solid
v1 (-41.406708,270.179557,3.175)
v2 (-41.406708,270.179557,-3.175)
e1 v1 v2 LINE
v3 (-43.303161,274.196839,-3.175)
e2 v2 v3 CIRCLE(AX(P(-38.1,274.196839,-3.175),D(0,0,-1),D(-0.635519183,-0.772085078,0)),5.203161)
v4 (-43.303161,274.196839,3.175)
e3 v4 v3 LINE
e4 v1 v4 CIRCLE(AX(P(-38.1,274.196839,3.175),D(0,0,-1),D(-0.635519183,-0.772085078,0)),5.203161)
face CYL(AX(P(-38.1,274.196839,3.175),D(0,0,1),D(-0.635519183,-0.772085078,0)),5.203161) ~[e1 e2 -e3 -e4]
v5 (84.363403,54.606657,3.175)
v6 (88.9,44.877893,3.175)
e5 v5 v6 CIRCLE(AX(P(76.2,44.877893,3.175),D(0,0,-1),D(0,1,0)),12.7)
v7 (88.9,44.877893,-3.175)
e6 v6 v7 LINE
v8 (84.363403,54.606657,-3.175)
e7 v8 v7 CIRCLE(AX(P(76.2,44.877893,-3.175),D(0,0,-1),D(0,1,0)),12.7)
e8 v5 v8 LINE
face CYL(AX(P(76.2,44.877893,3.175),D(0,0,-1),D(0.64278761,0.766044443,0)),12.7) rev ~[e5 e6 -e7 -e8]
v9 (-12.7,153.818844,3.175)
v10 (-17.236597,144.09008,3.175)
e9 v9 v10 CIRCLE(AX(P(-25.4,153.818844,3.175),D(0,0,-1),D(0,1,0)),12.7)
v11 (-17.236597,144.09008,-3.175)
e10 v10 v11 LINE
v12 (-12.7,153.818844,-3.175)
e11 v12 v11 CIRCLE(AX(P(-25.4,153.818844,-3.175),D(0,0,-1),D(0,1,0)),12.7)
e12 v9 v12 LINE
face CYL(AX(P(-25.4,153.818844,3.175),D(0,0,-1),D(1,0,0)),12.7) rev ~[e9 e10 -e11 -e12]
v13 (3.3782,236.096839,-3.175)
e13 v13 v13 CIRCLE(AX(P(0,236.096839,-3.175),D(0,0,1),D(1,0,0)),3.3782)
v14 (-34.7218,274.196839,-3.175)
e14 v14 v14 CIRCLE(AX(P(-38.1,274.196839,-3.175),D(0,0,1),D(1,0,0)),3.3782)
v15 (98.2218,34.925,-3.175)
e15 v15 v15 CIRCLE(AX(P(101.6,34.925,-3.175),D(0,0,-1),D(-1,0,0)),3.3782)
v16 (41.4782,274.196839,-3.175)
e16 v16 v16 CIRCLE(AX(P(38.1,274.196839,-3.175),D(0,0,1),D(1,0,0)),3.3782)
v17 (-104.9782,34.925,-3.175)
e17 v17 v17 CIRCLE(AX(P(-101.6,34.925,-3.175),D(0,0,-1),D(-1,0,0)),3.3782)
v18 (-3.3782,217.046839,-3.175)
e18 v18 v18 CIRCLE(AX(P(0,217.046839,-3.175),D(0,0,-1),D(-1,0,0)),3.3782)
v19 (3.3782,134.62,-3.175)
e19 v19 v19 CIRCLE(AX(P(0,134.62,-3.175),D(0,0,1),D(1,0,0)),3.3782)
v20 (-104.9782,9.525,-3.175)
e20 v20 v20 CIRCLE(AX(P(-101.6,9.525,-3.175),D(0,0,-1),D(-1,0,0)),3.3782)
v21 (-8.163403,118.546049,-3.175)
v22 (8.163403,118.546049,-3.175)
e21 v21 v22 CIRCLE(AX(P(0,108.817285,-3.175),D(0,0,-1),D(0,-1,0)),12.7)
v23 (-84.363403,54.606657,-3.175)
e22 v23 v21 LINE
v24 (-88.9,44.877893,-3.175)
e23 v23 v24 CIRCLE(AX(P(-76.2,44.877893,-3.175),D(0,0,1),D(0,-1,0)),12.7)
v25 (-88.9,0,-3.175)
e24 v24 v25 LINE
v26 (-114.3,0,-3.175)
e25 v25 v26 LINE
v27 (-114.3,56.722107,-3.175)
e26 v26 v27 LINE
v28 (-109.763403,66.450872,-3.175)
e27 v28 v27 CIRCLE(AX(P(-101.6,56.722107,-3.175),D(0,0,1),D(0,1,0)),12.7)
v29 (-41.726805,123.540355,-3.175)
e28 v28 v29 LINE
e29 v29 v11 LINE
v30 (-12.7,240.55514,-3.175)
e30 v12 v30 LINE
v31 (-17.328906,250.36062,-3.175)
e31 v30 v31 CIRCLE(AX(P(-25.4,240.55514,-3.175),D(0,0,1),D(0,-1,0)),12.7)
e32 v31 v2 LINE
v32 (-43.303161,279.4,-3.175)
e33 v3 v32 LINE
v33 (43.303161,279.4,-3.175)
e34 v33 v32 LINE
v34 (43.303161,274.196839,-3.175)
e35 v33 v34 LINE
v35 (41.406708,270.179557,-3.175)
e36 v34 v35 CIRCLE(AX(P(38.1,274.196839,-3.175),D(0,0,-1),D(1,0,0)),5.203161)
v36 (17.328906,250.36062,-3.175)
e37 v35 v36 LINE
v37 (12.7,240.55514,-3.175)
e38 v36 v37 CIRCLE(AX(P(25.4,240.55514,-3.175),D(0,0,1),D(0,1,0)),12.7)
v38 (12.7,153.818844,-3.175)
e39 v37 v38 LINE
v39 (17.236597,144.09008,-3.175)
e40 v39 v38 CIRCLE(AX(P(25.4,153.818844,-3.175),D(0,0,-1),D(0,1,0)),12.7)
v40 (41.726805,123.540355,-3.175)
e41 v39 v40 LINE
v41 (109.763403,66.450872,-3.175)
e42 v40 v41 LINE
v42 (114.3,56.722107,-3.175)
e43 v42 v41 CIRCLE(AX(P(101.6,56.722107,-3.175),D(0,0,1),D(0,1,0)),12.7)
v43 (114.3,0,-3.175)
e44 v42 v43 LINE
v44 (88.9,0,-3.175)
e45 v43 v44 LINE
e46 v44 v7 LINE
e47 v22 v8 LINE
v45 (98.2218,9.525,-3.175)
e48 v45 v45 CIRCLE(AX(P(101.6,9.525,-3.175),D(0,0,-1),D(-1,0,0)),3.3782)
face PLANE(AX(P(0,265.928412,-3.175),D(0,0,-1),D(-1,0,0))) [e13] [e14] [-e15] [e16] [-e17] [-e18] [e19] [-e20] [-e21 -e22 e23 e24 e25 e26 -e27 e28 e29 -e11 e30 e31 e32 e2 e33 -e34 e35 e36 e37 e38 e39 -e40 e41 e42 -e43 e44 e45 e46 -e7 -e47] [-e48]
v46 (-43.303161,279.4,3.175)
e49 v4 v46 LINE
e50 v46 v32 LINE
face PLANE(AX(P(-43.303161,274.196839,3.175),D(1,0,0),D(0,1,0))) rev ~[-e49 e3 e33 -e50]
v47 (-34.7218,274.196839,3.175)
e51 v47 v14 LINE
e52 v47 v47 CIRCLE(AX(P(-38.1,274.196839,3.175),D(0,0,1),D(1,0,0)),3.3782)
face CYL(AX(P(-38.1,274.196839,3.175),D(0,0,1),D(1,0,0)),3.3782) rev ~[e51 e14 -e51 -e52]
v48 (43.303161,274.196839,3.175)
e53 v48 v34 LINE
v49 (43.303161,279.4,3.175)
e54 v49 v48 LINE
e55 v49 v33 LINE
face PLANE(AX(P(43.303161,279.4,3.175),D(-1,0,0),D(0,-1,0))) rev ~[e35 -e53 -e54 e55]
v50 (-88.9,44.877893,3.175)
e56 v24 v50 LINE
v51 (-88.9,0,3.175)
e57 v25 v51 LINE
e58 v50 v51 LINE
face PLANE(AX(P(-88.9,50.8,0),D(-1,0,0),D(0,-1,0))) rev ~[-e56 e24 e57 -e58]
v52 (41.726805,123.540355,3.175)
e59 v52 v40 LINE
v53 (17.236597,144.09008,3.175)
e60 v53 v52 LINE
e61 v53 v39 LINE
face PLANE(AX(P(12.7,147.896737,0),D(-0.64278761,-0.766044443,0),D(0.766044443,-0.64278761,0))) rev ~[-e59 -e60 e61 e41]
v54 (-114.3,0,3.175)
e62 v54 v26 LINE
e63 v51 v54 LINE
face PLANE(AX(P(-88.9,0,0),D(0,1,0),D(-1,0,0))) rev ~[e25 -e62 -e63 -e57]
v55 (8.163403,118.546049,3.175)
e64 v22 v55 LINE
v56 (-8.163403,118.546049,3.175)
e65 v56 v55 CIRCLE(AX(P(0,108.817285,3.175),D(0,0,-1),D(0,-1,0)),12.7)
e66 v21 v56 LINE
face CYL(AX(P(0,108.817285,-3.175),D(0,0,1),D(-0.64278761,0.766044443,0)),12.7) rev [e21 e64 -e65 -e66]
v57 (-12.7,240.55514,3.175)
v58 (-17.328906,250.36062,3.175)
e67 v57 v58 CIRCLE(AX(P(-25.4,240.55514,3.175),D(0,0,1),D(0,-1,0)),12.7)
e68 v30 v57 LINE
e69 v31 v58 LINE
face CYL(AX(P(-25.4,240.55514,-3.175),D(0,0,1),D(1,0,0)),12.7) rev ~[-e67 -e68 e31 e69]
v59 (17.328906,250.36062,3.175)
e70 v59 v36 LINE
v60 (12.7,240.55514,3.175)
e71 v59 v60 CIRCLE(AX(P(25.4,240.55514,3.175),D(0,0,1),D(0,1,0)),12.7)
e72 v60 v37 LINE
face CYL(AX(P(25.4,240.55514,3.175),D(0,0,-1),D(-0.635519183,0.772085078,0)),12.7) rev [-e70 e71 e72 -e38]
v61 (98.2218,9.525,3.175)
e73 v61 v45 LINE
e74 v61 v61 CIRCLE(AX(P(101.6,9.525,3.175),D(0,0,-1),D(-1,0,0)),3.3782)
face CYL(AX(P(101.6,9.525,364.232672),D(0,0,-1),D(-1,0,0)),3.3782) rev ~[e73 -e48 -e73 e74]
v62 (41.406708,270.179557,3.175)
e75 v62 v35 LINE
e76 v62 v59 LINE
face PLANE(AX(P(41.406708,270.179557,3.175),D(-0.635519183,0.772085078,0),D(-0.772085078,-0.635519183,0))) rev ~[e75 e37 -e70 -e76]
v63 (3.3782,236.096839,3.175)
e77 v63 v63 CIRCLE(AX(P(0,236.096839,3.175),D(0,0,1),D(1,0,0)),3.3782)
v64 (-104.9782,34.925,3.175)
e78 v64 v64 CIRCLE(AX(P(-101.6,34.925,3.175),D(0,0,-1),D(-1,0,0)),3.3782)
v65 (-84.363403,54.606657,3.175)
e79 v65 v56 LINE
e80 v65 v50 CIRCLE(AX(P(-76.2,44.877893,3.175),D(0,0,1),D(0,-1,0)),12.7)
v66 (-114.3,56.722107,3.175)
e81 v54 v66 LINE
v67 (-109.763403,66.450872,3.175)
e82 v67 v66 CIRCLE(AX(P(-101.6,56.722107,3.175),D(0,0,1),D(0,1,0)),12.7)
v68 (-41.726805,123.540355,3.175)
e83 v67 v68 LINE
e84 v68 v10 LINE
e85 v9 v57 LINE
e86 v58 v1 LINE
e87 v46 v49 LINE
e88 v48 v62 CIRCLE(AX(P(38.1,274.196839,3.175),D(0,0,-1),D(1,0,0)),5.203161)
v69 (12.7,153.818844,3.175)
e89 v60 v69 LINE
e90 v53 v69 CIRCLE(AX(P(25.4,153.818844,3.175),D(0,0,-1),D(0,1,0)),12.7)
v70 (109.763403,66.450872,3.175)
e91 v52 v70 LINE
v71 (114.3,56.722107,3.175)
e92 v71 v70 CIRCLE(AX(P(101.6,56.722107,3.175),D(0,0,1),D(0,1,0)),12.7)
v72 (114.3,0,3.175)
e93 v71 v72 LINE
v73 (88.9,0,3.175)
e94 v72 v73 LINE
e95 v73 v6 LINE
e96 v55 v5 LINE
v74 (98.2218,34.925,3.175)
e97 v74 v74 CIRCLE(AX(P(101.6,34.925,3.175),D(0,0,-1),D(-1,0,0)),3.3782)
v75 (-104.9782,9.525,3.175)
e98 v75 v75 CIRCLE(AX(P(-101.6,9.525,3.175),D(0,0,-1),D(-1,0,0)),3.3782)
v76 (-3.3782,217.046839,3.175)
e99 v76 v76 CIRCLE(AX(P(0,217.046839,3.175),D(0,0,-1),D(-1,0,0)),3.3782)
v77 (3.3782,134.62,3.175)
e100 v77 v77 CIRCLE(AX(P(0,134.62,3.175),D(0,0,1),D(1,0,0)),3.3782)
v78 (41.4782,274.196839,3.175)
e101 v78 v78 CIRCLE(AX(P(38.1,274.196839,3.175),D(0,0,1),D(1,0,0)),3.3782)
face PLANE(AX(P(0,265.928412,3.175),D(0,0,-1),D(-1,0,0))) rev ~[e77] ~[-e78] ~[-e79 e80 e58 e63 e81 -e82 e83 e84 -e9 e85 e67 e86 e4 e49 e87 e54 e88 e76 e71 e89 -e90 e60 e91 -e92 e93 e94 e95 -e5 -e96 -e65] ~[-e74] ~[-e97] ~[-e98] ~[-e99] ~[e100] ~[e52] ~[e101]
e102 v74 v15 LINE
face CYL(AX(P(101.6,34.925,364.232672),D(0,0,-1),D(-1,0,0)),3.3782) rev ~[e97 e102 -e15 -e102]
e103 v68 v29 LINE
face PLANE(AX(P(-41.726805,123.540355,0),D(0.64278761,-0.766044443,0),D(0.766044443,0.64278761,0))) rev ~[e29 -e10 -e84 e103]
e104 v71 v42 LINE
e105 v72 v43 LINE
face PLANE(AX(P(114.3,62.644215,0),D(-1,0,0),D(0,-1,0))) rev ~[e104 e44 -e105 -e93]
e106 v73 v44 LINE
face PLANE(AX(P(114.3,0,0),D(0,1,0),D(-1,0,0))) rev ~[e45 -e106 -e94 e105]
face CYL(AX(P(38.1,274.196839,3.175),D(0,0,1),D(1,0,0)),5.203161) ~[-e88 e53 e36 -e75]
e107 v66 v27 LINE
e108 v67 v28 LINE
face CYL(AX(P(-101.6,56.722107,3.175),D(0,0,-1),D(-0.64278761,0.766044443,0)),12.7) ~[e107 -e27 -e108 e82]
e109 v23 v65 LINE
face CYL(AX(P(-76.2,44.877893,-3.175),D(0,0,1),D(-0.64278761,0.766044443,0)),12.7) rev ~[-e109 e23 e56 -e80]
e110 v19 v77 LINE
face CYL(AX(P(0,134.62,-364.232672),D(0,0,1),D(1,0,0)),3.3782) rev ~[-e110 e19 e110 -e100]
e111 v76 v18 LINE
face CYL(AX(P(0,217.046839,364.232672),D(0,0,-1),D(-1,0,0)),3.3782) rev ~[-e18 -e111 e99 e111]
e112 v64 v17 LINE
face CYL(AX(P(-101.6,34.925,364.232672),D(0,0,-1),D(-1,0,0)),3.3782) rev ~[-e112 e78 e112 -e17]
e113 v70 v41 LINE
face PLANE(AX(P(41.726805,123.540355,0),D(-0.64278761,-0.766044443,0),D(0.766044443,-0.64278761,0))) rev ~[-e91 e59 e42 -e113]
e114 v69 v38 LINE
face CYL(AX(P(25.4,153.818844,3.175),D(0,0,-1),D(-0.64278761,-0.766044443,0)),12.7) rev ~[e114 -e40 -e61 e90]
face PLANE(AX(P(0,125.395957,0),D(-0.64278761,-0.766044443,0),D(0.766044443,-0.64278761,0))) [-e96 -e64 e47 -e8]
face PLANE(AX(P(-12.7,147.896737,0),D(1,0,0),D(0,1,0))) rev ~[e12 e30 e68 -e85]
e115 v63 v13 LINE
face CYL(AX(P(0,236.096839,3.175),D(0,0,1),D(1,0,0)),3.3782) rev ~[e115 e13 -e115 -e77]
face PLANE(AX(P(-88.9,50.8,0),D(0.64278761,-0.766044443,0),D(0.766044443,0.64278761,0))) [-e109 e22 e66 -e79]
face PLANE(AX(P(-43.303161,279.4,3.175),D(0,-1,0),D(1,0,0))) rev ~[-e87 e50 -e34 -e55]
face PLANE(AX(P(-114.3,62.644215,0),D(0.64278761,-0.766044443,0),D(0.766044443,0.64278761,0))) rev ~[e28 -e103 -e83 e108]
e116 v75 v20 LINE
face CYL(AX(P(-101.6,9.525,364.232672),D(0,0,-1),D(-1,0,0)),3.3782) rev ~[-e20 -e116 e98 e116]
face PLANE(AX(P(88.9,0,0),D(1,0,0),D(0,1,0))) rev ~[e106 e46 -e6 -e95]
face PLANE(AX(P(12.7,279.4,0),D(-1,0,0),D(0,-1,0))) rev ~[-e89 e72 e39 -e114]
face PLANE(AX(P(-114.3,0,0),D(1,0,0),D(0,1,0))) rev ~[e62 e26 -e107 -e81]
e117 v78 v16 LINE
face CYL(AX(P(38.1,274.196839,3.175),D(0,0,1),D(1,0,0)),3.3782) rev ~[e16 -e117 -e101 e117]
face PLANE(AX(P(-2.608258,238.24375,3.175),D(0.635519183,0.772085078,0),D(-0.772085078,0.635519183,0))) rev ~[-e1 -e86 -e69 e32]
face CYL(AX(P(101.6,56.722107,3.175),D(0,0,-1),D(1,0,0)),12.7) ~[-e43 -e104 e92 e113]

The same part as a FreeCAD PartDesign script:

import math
import FreeCAD as App
import Part
import Sketcher

V = App.Vector
Q = App.Units.Quantity


def edges_at(feature, points):
    """Names of the edges that pass closest to the given points."""
    edges = feature.Shape.Edges
    near = lambda p: min(range(len(edges)), key=lambda i: edges[i].distToShape(Part.Vertex(*p))[0])
    return sorted({f"Edge{near(p) + 1}" for p in points})


def add_polygon(sketch, points):
    """Adds a closed chain of lines whose ends are joined by coincident constraints."""
    first, n = sketch.GeometryCount, len(points)
    for a, b in zip(points, points[1:] + points[:1]):
        sketch.addGeometry(Part.LineSegment(App.Vector(*a, 0), App.Vector(*b, 0)), False)
    for i in range(n):
        sketch.addConstraint(Sketcher.Constraint("Coincident", first + i, 2, first + (i + 1) % n, 1))

doc = App.newDocument("Part")
body = doc.addObject("PartDesign::Body", "Body")

sketch1 = doc.addObject("Sketcher::SketchObject", "Sketch")
body.addObject(sketch1)
sketch1.AttachmentSupport = (doc.XY_Plane, [""])
sketch1.MapMode = "FlatFace"
add_polygon(sketch1, [(-114, 0), (-89, 0), (-89, 51), (0, 125), (89, 51), (89, 0), (114, 0), (114, 63), (42, 124), (13, 148), (13, 279), (-13, 279), (-13, 148), (-42, 124), (-114, 63)])
sketch1.addConstraint([
    Sketcher.Constraint("Horizontal", 0),
    Sketcher.Constraint("Vertical", 1),
    Sketcher.Constraint("Vertical", 4),
    Sketcher.Constraint("Horizontal", 5),
    Sketcher.Constraint("Vertical", 6),
    Sketcher.Constraint("Vertical", 9),
    Sketcher.Constraint("Horizontal", 10),
    Sketcher.Constraint("Vertical", 11),
    Sketcher.Constraint("Vertical", 14),
    Sketcher.Constraint("Symmetric", 0, 2, 4, 2, -1, 1),
    Sketcher.Constraint("Symmetric", 8, 2, 11, 2, -2),
    Sketcher.Constraint("Symmetric", 7, 2, 12, 2, -2),
    Sketcher.Constraint("Symmetric", 6, 2, 13, 2, -2),
    Sketcher.Constraint("PointOnObject", 0, 2, -1),
    Sketcher.Constraint("PointOnObject", 2, 2, -2),
    Sketcher.Constraint("Parallel", 3, 7),
    Sketcher.Constraint("Parallel", 7, 8),
    Sketcher.Constraint("Parallel", 2, 12),
    Sketcher.Constraint("Equal", 5, 10),
    Sketcher.Constraint("DistanceX", 0, 1, 0, 2, Q("1 in")),
    Sketcher.Constraint("DistanceY", 1, 1, 1, 2, Q("2 in")),
    Sketcher.Constraint("DistanceY", -1, 1, 9, 2, Q("11 in")),
    Sketcher.Constraint("Angle", 2, Q("40 deg")),
    Sketcher.Constraint("DistanceX", 1, 2, 3, 2, Q("7 in")),
    Sketcher.Constraint("DistanceY", 7, 2, 2, 2, 1.855602),
    Sketcher.Constraint("DistanceY", 6, 1, 6, 2, 62.644215),
])
pad1 = doc.addObject("PartDesign::Pad", "Pad")
body.addObject(pad1)
pad1.Profile = sketch1
pad1.Length = Q("0.25 in")
pad1.Midplane = True
doc.recompute()

fillet = doc.addObject("PartDesign::Fillet", "Fillet")
body.addObject(fillet)
fillet.Base = (pad1, edges_at(pad1, [
    (-114.3, 62.644, 0),
    (-12.7, 147.897, 0),
    (12.7, 147.897, 0),
    (114.3, 62.644, 0),
    (88.9, 50.8, 0),
    (0, 125.396, 0),
    (-88.9, 50.8, 0),
]))
fillet.Radius = Q("0.5 in")

sketch2 = doc.addObject("Sketcher::SketchObject", "Sketch001")
body.addObject(sketch2)
sketch2.AttachmentSupport = (doc.XY_Plane, [""])
sketch2.MapMode = "FlatFace"
sketch2.AttachmentOffset = App.Placement(V(0, 0, 0.125 * 25.4), App.Rotation())
sketch2.addGeometry([
    Part.Circle(V(101.6, 34.9, 0), V(0, 0, 1), 3.4),
    Part.Circle(V(-101.6, 9.5, 0), V(0, 0, 1), 3.4),
    Part.Circle(V(-101.6, 34.9, 0), V(0, 0, 1), 3.4),
    Part.Circle(V(101.6, 9.5, 0), V(0, 0, 1), 3.4),
], False)
sketch2.addConstraint([
    Sketcher.Constraint("Equal", 0, 1),
    Sketcher.Constraint("Equal", 1, 2),
    Sketcher.Constraint("Equal", 2, 3),
    Sketcher.Constraint("Symmetric", 0, 3, 2, 3, -2),
    Sketcher.Constraint("Symmetric", 1, 3, 3, 3, -2),
    Sketcher.Constraint("Vertical", 1, 3, 2, 3),
    Sketcher.Constraint("Diameter", 0, Q("0.266 in")),
    Sketcher.Constraint("DistanceX", -1, 1, 0, 3, Q("4 in")),
    Sketcher.Constraint("DistanceY", 1, 3, 0, 3, Q("1 in")),
    Sketcher.Constraint("DistanceY", -1, 1, 0, 3, Q("1.375 in")),
])
doc.recompute()
hole = doc.addObject("PartDesign::Hole", "Hole")
body.addObject(hole)
hole.Profile = sketch2
hole.ThreadType = "None"
hole.Diameter = Q("0.266 in")
hole.DepthType = "ThroughAll"

sketch3 = doc.addObject("Sketcher::SketchObject", "Sketch002")
body.addObject(sketch3)
sketch3.AttachmentSupport = (doc.XY_Plane, [""])
sketch3.MapMode = "FlatFace"
sketch3.AttachmentOffset = App.Placement(V(0, 0, -0.125 * 25.4), App.Rotation())
sketch3.addGeometry(Part.Circle(V(0, 134.6, 0), V(0, 0, 1), 3.4), False)
sketch3.addConstraint([
    Sketcher.Constraint("PointOnObject", 0, 3, -2),
    Sketcher.Constraint("Diameter", 0, Q("0.266 in")),
    Sketcher.Constraint("DistanceY", -1, 1, 0, 3, Q("5.3 in")),
])
doc.recompute()
hole2 = doc.addObject("PartDesign::Hole", "Hole001")
body.addObject(hole2)
hole2.Profile = sketch3
hole2.ThreadType = "None"
hole2.Diameter = Q("0.266 in")
hole2.DepthType = "ThroughAll"
hole2.Reversed = True

sketch4 = doc.addObject("Sketcher::SketchObject", "Sketch003")
body.addObject(sketch4)
sketch4.AttachmentSupport = (doc.XY_Plane, [""])
sketch4.MapMode = "FlatFace"
sketch4.AttachmentOffset = App.Placement(V(0, 0, 0.125 * 25.4), App.Rotation())
sketch4.addGeometry(Part.Circle(V(0, 217, 0), V(0, 0, 1), 3.4), False)
sketch4.addConstraint([
    Sketcher.Constraint("PointOnObject", 0, 3, -2),
    Sketcher.Constraint("Diameter", 0, Q("0.266 in")),
    Sketcher.Constraint("DistanceY", -1, 1, 0, 3, 217.046839),
])
doc.recompute()
hole3 = doc.addObject("PartDesign::Hole", "Hole002")
body.addObject(hole3)
hole3.Profile = sketch4
hole3.ThreadType = "None"
hole3.Diameter = Q("0.266 in")
hole3.DepthType = "ThroughAll"

sketch5 = doc.addObject("Sketcher::SketchObject", "Sketch004")
body.addObject(sketch5)
sketch5.AttachmentSupport = (doc.XY_Plane, [""])
sketch5.MapMode = "FlatFace"
sketch5.AttachmentOffset = App.Placement(V(0, 0, 0.125 * 25.4), App.Rotation())
sketch5.addGeometry([
    Part.LineSegment(V(43.3, 279.4, 0), V(-43.3, 279.4, 0)),
    Part.LineSegment(V(-43.3, 279.4, 0), V(-43.3, 274.2, 0)),
    Part.ArcOfCircle(Part.Circle(V(-38.1, 274.2, 0), V(0, 0, 1), 5.2), math.radians(180), math.radians(231)),
    Part.LineSegment(V(-41.4, 270.2, 0), V(-2.6, 238.2, 0)),
    Part.ArcOfCircle(Part.Circle(V(0, 236.1, 0), V(0, 0, 1), 3.4), math.radians(39), math.radians(141)),
    Part.LineSegment(V(2.6, 238.2, 0), V(41.4, 270.2, 0)),
    Part.ArcOfCircle(Part.Circle(V(38.1, 274.2, 0), V(0, 0, 1), 5.2), math.radians(-51), math.radians(0)),
    Part.LineSegment(V(43.3, 274.2, 0), V(43.3, 279.4, 0)),
    Part.Circle(V(38.1, 274.2, 0), V(0, 0, 1), 3.4),
    Part.Circle(V(-38.1, 274.2, 0), V(0, 0, 1), 3.4),
], False)
sketch5.addConstraint([
    Sketcher.Constraint("Coincident", 0, 2, 1, 1),
    Sketcher.Constraint("Tangent", 1, 2, 2, 1),
    Sketcher.Constraint("Tangent", 2, 2, 3, 1),
    Sketcher.Constraint("Coincident", 3, 2, 4, 2),
    Sketcher.Constraint("Coincident", 4, 1, 5, 1),
    Sketcher.Constraint("Tangent", 5, 2, 6, 1),
    Sketcher.Constraint("Tangent", 6, 2, 7, 1),
    Sketcher.Constraint("Coincident", 7, 2, 0, 1),
    Sketcher.Constraint("Horizontal", 0),
    Sketcher.Constraint("Vertical", 1),
    Sketcher.Constraint("Vertical", 7),
    Sketcher.Constraint("Coincident", 8, 3, 6, 3),
    Sketcher.Constraint("Coincident", 9, 3, 2, 3),
    Sketcher.Constraint("Equal", 2, 6),
    Sketcher.Constraint("Equal", 4, 8),
    Sketcher.Constraint("Equal", 8, 9),
    Sketcher.Constraint("Symmetric", 2, 3, 6, 3, -2),
    Sketcher.Constraint("Symmetric", 3, 2, 4, 1, -2),
    Sketcher.Constraint("Diameter", 8, Q("0.266 in")),
    Sketcher.Constraint("DistanceY", -1, 1, 0, 2, Q("11 in")),
    Sketcher.Constraint("DistanceX", 2, 3, 6, 3, Q("3 in")),
    Sketcher.Constraint("DistanceY", 4, 3, 2, 3, Q("1.5 in")),
    Sketcher.Constraint("Radius", 2, 5.203161),
    Sketcher.Constraint("DistanceY", 1, 2, 1, 1, 5.203161),
    Sketcher.Constraint("DistanceX", 2, 2, -1, 1, 41.406708),
])
pad2 = doc.addObject("PartDesign::Pad", "Pad001")
body.addObject(pad2)
pad2.Profile = sketch5
pad2.Length = Q("0.25 in")
pad2.Reversed = True
doc.recompute()

fillet2 = doc.addObject("PartDesign::Fillet", "Fillet001")
body.addObject(fillet2)
fillet2.Base = (pad2, edges_at(pad2, [(12.7, 246.55, 0), (-12.7, 246.55, 0)]))
fillet2.Radius = Q("0.5 in")

sketch6 = doc.addObject("Sketcher::SketchObject", "Sketch005")
body.addObject(sketch6)
sketch6.AttachmentSupport = (doc.XY_Plane, [""])
sketch6.MapMode = "FlatFace"
sketch6.AttachmentOffset = App.Placement(V(0, 0, 0.125 * 25.4), App.Rotation())
sketch6.addGeometry(Part.Circle(V(0, 236.1, 0), V(0, 0, 1), 3.4), False)
sketch6.addConstraint([
    Sketcher.Constraint("PointOnObject", 0, 3, -2),
    Sketcher.Constraint("Diameter", 0, Q("0.266 in")),
    Sketcher.Constraint("DistanceY", -1, 1, 0, 3, 236.096839),
])
pocket1 = doc.addObject("PartDesign::Pocket", "Pocket")
body.addObject(pocket1)
pocket1.Profile = sketch6
pocket1.Type = "ThroughAll"

doc.recompute()
